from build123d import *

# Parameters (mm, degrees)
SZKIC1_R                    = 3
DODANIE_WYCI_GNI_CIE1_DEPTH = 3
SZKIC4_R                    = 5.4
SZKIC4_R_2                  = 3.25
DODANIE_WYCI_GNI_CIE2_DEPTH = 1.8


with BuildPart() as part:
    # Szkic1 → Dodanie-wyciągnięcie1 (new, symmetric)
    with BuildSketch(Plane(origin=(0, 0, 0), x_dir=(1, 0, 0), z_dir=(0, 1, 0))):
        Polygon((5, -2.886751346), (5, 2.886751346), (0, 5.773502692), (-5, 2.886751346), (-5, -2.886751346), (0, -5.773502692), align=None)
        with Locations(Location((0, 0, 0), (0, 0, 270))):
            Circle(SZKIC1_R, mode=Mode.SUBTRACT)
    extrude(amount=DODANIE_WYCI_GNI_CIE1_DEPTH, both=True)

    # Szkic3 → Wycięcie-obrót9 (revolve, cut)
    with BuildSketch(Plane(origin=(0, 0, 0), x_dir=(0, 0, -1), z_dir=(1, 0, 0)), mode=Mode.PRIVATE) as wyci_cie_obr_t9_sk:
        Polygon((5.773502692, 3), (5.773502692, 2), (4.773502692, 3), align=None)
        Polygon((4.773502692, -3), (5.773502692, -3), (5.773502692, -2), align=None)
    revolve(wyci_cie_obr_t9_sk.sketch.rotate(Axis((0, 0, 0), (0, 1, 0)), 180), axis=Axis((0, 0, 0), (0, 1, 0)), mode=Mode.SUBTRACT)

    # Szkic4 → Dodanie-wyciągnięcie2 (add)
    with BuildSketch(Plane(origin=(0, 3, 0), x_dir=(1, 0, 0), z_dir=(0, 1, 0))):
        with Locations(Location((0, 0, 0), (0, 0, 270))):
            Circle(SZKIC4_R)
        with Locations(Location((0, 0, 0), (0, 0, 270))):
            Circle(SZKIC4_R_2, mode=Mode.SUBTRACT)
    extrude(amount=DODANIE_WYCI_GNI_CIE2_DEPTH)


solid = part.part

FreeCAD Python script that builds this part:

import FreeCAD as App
import Part
import Sketcher

V = App.Vector
Q = App.Units.Quantity

doc = App.newDocument("Part")
body = doc.addObject("PartDesign::Body", "Body")

# Sketch on XZ plane
sketch1 = body.newObject("Sketcher::SketchObject", "Sketch")
sketch1.AttachmentSupport = (doc.getObject("XZ_Plane"), [""])
sketch1.MapMode = "FlatFace"
sketch1.addGeometry([
    Part.LineSegment(V(5, 2.9, 0), V(5, -2.9, 0)),  # 0
    Part.LineSegment(V(5, -2.9, 0), V(0, -5.8, 0)),  # 1
    Part.LineSegment(V(0, -5.8, 0), V(-5, -2.9, 0)),  # 2
    Part.LineSegment(V(-5, -2.9, 0), V(-5, 2.9, 0)),  # 3
    Part.LineSegment(V(-5, 2.9, 0), V(0, 5.8, 0)),  # 4
    Part.LineSegment(V(0, 5.8, 0), V(5, 2.9, 0)),  # 5
    Part.Circle(V(0, 0, 0), V(0, 0, 1), 3),  # 6
], False)
sketch1.addConstraint([
    Sketcher.Constraint("Coincident", 0, 2, 1, 1),
    Sketcher.Constraint("Coincident", 1, 2, 2, 1),
    Sketcher.Constraint("Coincident", 2, 2, 3, 1),
    Sketcher.Constraint("Coincident", 3, 2, 4, 1),
    Sketcher.Constraint("Coincident", 4, 2, 5, 1),
    Sketcher.Constraint("Coincident", 5, 2, 0, 1),
    Sketcher.Constraint("Vertical", 0),
    Sketcher.Constraint("Vertical", 3),
    Sketcher.Constraint("Coincident", 6, 3, -1, 1),
    Sketcher.Constraint("Symmetric", 0, 2, 3, 2, -1, 1),
    Sketcher.Constraint("Symmetric", 1, 2, 4, 2, -1, 1),
    Sketcher.Constraint("PointOnObject", 1, 2, -2),
    Sketcher.Constraint("Parallel", 2, 5),
    Sketcher.Constraint("Horizontal", 0, 2, 2, 2),
    Sketcher.Constraint("Diameter", 6, 6.0),
    Sketcher.Constraint("Angle", 1, Q("-150 deg")),
    Sketcher.Constraint("DistanceX", -1, 1, 0, 2, 5.0),
    Sketcher.Constraint("DistanceY", 0, 2, 0, 1, 5.773503),
])
pad1 = body.newObject("PartDesign::Pad", "Pad")
pad1.Profile = sketch1
pad1.Length = 6
pad1.Midplane = True

# Sketch on YZ plane
sketch2 = body.newObject("Sketcher::SketchObject", "Sketch001")
sketch2.AttachmentSupport = (doc.getObject("YZ_Plane"), [""])
sketch2.MapMode = "FlatFace"
sketch2.addGeometry([
    Part.LineSegment(V(2, -5.8, 0), V(3, -5.8, 0)),  # 0
    Part.LineSegment(V(3, -5.8, 0), V(3, -4.8, 0)),  # 1
    Part.LineSegment(V(3, -4.8, 0), V(2, -5.8, 0)),  # 2
    Part.LineSegment(V(-3, -4.8, 0), V(-3, -5.8, 0)),  # 3
    Part.LineSegment(V(-3, -5.8, 0), V(-2, -5.8, 0)),  # 4
    Part.LineSegment(V(-2, -5.8, 0), V(-3, -4.8, 0)),  # 5
], False)
sketch2.addConstraint([
    Sketcher.Constraint("Coincident", 0, 2, 1, 1),
    Sketcher.Constraint("Coincident", 1, 2, 2, 1),
    Sketcher.Constraint("Coincident", 2, 2, 0, 1),
    Sketcher.Constraint("Coincident", 3, 2, 4, 1),
    Sketcher.Constraint("Coincident", 4, 2, 5, 1),
    Sketcher.Constraint("Coincident", 5, 2, 3, 1),
    Sketcher.Constraint("Horizontal", 0),
    Sketcher.Constraint("Vertical", 1),
    Sketcher.Constraint("Vertical", 3),
    Sketcher.Constraint("Horizontal", 4),
    Sketcher.Constraint("Symmetric", 0, 2, 3, 2, -2),
    Sketcher.Constraint("Perpendicular", 2, 5),
    Sketcher.Constraint("Horizontal", 1, 2, 5, 2),
    Sketcher.Constraint("Equal", 0, 4),
    Sketcher.Constraint("DistanceX", 0, 1, 0, 2, 1.0),
    Sketcher.Constraint("DistanceX", -1, 1, 0, 2, 3.0),
    Sketcher.Constraint("DistanceY", 0, 2, -1, 1, 5.773503),
])
groove = body.newObject("PartDesign::Groove", "Groove")
groove.Profile = sketch2
groove.ReferenceAxis = (sketch2, ["H_Axis"])
groove.Angle = 360

# Sketch on XZ plane
sketch3 = body.newObject("Sketcher::SketchObject", "Sketch002")
sketch3.AttachmentSupport = (doc.getObject("XZ_Plane"), [""])
sketch3.MapMode = "FlatFace"
sketch3.AttachmentOffset = App.Placement(V(0, 0, -3), App.Rotation())
sketch3.addGeometry([
    Part.Circle(V(0, 0, 0), V(0, 0, 1), 5.4),
    Part.Circle(V(0, 0, 0), V(0, 0, 1), 3.2),
], False)
sketch3.addConstraint([
    Sketcher.Constraint("Coincident", 0, 3, -1, 1),
    Sketcher.Constraint("Coincident", 1, 3, -1, 1),
    Sketcher.Constraint("Diameter", 0, 10.8),
    Sketcher.Constraint("Diameter", 1, 6.5),
])
pad2 = body.newObject("PartDesign::Pad", "Pad001")
pad2.Profile = sketch3
pad2.Length = 1.8
pad2.Reversed = True

doc.recompute()
